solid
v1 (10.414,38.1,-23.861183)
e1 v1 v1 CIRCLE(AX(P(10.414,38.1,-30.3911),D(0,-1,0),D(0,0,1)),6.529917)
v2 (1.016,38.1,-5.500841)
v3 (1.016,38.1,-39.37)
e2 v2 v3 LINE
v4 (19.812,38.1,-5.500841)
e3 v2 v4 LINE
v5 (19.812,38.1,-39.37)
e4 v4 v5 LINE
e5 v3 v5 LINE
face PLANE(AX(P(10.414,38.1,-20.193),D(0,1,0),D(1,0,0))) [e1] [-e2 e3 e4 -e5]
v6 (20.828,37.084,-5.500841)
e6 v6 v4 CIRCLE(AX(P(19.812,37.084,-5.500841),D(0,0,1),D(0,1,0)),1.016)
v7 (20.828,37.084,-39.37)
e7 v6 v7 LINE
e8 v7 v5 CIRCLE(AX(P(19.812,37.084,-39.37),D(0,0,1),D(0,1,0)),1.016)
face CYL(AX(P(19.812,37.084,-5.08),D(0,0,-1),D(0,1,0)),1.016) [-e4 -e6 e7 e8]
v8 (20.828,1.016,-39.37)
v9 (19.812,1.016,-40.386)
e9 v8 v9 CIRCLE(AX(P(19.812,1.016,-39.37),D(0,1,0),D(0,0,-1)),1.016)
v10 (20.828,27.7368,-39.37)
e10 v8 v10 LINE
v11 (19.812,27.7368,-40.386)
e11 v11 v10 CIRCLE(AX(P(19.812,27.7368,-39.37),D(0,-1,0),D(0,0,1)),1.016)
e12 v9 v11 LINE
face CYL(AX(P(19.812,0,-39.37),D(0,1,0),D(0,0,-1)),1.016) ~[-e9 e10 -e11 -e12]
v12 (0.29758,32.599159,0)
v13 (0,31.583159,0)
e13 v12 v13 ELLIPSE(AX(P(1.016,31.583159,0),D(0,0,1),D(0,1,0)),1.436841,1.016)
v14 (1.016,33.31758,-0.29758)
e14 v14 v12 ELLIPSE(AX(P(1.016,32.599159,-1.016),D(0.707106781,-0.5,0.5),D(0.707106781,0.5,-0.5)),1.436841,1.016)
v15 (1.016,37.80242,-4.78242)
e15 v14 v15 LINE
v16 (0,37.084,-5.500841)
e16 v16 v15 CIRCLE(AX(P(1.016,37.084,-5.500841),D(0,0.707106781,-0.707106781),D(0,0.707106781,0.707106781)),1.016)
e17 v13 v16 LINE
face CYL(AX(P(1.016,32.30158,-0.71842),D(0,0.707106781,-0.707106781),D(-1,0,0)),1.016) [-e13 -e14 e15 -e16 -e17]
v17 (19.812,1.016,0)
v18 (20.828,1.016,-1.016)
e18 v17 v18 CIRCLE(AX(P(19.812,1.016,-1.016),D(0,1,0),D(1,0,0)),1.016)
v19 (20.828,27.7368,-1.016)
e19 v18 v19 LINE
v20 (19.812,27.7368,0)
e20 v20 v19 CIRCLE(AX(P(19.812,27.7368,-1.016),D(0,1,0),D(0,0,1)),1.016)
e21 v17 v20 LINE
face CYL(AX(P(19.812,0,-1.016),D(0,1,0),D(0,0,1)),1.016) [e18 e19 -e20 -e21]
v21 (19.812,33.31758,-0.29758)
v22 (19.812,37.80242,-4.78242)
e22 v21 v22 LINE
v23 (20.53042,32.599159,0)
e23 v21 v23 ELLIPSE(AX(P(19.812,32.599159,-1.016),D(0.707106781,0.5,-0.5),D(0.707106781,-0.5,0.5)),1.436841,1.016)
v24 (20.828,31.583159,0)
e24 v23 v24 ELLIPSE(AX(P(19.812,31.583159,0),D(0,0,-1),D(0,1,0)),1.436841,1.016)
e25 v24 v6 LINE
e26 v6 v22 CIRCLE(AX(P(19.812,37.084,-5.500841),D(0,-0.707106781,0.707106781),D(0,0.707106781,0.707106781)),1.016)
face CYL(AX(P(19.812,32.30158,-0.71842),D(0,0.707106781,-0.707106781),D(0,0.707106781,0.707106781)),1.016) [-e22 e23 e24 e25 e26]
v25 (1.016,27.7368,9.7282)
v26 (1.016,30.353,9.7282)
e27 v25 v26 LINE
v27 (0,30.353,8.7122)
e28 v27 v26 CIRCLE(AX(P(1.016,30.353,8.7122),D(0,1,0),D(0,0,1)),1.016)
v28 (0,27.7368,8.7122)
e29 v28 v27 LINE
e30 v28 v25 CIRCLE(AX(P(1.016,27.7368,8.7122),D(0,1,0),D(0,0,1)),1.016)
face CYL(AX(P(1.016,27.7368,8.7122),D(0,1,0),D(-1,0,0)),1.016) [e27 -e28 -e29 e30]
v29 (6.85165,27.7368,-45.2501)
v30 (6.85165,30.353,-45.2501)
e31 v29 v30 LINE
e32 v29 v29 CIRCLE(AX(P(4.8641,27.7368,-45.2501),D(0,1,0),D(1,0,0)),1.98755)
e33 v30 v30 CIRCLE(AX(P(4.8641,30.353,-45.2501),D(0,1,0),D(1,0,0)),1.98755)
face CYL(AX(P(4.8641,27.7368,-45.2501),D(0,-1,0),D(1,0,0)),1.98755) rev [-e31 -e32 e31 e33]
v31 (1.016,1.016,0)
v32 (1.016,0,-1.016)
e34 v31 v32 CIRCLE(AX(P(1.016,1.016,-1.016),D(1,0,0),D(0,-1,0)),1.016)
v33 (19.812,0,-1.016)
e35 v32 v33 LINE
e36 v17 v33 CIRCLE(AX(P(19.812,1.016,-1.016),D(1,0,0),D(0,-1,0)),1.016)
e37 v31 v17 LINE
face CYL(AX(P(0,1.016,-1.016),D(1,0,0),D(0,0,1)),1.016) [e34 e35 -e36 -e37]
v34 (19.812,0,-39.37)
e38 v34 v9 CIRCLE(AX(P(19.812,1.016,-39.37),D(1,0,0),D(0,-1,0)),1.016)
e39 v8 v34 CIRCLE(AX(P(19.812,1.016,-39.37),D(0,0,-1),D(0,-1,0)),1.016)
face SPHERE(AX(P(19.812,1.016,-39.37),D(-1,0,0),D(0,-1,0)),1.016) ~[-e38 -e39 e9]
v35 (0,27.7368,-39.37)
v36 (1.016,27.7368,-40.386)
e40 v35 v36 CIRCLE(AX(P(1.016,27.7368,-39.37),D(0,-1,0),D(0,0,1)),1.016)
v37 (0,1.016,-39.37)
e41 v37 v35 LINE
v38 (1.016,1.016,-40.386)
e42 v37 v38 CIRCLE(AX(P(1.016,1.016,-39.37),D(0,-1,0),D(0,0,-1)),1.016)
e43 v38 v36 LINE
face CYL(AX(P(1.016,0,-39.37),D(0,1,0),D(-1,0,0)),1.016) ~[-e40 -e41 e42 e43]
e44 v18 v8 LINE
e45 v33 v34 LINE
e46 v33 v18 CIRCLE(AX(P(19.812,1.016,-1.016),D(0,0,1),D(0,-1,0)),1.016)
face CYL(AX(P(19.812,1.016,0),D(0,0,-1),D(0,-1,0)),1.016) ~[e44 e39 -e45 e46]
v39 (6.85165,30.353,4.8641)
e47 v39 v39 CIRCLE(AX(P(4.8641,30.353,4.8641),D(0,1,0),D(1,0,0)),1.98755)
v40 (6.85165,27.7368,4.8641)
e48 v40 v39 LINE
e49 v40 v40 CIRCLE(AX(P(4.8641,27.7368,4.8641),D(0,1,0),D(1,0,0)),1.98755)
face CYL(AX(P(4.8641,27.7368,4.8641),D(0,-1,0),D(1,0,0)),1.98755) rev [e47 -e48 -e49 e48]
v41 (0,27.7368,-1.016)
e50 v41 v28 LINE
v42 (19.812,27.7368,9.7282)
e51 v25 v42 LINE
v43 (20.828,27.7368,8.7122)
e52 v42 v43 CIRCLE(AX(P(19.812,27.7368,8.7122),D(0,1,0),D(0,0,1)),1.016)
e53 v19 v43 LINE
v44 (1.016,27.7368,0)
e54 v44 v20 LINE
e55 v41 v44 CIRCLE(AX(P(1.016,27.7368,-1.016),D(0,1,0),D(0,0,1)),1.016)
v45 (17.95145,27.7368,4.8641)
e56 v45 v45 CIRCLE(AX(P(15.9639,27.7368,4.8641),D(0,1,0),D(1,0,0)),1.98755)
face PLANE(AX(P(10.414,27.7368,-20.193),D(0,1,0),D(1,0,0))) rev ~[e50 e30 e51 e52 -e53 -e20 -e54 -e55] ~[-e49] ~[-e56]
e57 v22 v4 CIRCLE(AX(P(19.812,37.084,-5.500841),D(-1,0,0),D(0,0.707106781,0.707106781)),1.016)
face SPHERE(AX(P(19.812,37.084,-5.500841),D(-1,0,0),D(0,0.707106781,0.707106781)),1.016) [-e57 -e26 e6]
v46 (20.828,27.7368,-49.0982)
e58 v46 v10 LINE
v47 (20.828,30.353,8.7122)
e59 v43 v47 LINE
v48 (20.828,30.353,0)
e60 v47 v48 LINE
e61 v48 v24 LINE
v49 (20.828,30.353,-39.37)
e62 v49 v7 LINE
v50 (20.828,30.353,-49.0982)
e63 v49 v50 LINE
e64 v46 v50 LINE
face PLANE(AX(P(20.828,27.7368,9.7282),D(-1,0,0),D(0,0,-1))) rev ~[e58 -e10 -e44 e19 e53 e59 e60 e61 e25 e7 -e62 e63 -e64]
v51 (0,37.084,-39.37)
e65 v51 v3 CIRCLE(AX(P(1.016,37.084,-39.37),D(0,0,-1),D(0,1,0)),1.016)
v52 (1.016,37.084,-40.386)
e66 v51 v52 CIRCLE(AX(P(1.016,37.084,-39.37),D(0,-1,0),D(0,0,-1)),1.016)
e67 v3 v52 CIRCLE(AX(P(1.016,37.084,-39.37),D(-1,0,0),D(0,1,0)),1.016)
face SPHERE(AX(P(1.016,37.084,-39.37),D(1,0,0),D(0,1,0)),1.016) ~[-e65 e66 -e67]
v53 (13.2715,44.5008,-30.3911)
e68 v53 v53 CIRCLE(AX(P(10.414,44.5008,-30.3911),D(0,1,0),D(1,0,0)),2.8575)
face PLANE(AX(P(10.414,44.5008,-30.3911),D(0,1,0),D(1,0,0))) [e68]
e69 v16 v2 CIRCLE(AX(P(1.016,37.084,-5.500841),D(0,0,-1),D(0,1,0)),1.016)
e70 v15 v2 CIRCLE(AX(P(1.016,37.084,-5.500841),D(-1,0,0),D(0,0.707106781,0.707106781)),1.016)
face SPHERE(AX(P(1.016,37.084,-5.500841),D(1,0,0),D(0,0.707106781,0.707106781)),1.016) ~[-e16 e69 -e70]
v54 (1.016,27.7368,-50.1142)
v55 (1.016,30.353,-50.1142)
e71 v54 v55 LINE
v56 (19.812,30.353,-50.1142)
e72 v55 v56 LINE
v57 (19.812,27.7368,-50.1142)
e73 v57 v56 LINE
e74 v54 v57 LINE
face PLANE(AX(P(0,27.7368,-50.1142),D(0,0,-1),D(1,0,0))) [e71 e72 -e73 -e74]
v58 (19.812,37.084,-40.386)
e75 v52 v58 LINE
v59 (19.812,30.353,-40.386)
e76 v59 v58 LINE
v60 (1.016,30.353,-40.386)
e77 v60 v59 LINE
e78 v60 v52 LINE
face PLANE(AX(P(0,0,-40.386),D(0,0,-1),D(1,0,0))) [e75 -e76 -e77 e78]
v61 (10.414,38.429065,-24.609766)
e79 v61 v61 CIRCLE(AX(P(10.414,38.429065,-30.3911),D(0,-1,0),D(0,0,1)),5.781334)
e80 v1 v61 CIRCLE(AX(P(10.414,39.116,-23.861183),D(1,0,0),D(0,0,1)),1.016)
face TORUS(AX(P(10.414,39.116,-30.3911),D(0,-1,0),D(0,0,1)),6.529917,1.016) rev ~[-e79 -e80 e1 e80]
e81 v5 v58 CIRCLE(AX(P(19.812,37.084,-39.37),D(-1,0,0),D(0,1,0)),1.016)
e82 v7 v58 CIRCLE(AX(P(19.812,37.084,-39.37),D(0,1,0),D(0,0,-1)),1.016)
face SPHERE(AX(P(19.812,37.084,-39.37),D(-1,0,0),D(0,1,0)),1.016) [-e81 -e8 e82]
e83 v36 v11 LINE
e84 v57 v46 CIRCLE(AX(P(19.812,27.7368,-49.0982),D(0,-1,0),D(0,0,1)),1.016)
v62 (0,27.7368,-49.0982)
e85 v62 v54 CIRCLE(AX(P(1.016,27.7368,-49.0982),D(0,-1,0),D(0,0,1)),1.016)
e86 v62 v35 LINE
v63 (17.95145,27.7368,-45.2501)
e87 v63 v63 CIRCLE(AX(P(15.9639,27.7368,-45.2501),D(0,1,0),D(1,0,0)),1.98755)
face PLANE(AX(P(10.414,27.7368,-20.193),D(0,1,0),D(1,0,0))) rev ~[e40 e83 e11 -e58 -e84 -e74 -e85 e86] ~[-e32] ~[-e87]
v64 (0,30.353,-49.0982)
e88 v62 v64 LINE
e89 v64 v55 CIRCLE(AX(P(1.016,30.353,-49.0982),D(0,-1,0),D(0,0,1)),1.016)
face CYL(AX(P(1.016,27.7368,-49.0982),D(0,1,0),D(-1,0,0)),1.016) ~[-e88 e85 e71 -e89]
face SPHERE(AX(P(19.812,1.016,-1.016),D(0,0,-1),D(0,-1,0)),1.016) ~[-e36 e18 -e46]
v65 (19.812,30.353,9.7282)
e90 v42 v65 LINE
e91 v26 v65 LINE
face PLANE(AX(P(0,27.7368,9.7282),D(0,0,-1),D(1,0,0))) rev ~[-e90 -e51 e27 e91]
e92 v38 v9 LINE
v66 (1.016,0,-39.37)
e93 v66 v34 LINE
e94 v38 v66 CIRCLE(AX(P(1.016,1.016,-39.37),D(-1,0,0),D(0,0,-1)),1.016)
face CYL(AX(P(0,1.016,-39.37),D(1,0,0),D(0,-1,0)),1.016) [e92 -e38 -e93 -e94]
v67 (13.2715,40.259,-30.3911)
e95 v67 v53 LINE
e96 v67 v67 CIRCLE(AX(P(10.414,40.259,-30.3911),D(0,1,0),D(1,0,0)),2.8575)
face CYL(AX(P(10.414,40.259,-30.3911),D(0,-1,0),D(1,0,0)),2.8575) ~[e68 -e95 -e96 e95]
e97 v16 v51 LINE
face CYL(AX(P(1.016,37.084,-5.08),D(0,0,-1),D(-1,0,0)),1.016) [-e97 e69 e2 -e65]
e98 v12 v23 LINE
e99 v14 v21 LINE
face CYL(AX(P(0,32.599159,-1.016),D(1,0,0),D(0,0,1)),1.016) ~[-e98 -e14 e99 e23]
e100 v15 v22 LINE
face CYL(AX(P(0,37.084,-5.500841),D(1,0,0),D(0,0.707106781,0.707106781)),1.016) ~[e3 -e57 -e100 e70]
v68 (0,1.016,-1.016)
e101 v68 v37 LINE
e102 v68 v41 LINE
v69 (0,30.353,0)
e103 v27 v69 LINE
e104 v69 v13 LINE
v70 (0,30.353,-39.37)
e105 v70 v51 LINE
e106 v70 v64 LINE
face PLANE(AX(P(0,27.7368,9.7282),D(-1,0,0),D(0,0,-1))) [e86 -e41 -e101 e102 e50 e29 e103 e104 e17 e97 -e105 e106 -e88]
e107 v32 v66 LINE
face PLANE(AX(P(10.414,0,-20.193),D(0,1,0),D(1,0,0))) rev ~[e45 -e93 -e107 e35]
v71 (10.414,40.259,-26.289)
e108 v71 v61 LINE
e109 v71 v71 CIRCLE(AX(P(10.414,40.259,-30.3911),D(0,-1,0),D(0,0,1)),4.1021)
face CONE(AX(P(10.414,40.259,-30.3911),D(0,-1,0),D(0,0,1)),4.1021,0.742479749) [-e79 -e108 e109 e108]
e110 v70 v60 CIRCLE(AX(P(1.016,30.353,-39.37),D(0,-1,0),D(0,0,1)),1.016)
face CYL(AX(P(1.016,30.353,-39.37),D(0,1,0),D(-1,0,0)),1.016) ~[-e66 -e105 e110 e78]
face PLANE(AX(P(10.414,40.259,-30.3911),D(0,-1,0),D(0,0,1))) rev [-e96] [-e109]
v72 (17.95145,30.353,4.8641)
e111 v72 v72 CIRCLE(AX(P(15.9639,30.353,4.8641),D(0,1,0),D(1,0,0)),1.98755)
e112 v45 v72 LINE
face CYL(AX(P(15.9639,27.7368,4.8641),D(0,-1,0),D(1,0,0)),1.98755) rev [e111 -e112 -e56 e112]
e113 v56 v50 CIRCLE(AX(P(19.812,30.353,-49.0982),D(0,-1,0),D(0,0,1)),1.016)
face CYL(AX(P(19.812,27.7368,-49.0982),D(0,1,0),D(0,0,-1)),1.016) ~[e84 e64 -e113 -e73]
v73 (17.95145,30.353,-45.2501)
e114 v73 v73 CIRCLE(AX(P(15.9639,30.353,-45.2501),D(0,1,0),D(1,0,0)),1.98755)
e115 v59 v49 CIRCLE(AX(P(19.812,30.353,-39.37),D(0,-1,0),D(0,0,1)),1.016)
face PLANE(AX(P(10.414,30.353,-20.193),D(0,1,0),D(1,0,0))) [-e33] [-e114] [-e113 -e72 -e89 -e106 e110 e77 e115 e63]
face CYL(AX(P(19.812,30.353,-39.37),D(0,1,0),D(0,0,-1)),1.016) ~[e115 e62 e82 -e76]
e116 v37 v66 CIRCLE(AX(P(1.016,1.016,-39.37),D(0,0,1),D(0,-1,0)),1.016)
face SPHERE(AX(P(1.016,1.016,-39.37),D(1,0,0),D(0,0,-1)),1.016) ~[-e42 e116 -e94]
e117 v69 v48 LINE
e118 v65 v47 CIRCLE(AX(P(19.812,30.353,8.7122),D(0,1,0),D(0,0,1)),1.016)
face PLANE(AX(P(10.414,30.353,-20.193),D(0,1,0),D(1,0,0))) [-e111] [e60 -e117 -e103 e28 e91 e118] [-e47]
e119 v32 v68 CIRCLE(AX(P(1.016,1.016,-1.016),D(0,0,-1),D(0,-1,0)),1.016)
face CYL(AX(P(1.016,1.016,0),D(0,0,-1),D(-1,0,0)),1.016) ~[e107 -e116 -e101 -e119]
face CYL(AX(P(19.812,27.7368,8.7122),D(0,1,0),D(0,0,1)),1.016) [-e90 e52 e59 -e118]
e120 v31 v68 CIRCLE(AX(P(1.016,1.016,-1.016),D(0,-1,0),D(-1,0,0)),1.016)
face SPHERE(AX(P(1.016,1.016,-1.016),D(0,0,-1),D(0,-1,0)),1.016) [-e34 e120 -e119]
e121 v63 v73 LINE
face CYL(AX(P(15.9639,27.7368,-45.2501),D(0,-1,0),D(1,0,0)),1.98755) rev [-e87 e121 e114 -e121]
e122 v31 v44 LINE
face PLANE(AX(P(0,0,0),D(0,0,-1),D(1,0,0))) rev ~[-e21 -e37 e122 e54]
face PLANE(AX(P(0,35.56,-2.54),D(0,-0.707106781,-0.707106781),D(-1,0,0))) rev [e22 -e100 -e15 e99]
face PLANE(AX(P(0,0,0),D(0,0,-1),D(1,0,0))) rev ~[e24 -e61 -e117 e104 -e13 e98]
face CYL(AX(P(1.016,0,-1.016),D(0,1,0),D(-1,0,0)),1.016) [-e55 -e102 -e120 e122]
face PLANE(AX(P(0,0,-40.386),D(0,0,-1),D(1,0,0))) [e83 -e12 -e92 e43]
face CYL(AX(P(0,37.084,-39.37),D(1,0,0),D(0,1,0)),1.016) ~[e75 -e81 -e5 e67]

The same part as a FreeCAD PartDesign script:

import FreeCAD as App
import Part
import Sketcher

V = App.Vector
Q = App.Units.Quantity


def edges_at(feature, points):
    """Names of the edges that pass closest to the given points."""
    edges = feature.Shape.Edges
    near = lambda p: min(range(len(edges)), key=lambda i: edges[i].distToShape(Part.Vertex(*p))[0])
    return sorted({f"Edge{near(p) + 1}" for p in points})

doc = App.newDocument("Part")
body = doc.addObject("PartDesign::Body", "Body")

# Sketch on XZ plane
sketch1 = doc.addObject("Sketcher::SketchObject", "Sketch")
body.addObject(sketch1)
sketch1.AttachmentSupport = (doc.XZ_Plane, [""])
sketch1.MapMode = "FlatFace"
sketch1.addGeometry(Part.LineSegment(V(0, -40.386, 0), V(0, 0, 0)), False)
sketch1.addGeometry(Part.LineSegment(V(0, 0, 0), V(20.828, 0, 0)), False)
sketch1.addGeometry(Part.LineSegment(V(20.828, 0, 0), V(20.828, -40.386, 0)), False)
sketch1.addGeometry(Part.LineSegment(V(20.828, -40.386, 0), V(0, -40.386, 0)), False)
sketch1.addConstraint(Sketcher.Constraint("Coincident", 0, 2, 1, 1))
sketch1.addConstraint(Sketcher.Constraint("Coincident", 1, 2, 2, 1))
sketch1.addConstraint(Sketcher.Constraint("Coincident", 2, 2, 3, 1))
sketch1.addConstraint(Sketcher.Constraint("Coincident", 3, 2, 0, 1))
sketch1.addConstraint(Sketcher.Constraint("Vertical", 0))
sketch1.addConstraint(Sketcher.Constraint("Horizontal", 1))
sketch1.addConstraint(Sketcher.Constraint("Vertical", 2))
sketch1.addConstraint(Sketcher.Constraint("Horizontal", 3))
sketch1.addConstraint(Sketcher.Constraint("Coincident", 0, 2, -1, 1))
sketch1.addConstraint(Sketcher.Constraint("DistanceX", 1, 1, 1, 2, Q("0.82 in")))
sketch1.addConstraint(Sketcher.Constraint("DistanceY", 0, 1, 0, 2, Q("1.59 in")))
pad1 = doc.addObject("PartDesign::Pad", "Pad")
body.addObject(pad1)
pad1.Profile = sketch1
pad1.Length = Q("1.5 in")
pad1.Reversed = True

# Sketch on XZ plane
sketch2 = doc.addObject("Sketcher::SketchObject", "Sketch001")
body.addObject(sketch2)
sketch2.AttachmentSupport = (doc.XZ_Plane, [""])
sketch2.MapMode = "FlatFace"
sketch2.AttachmentOffset = App.Placement(V(0, 0, -1.092 * 25.4), App.Rotation())
sketch2.addGeometry(Part.LineSegment(V(0, -50.1142, 0), V(0, 9.7282, 0)), False)
sketch2.addGeometry(Part.LineSegment(V(0, 9.7282, 0), V(20.828, 9.7282, 0)), False)
sketch2.addGeometry(Part.LineSegment(V(20.828, 9.7282, 0), V(20.828, -50.1142, 0)), False)
sketch2.addGeometry(Part.LineSegment(V(20.828, -50.1142, 0), V(0, -50.1142, 0)), False)
sketch2.addGeometry(Part.Circle(V(4.8641, 4.8641, 0), V(0, 0, 1), 1.98755), False)
sketch2.addGeometry(Part.Circle(V(15.9639, 4.8641, 0), V(0, 0, 1), 1.98755), False)
sketch2.addGeometry(Part.Circle(V(4.8641, -45.2501, 0), V(0, 0, 1), 1.98755), False)
sketch2.addGeometry(Part.Circle(V(15.9639, -45.2501, 0), V(0, 0, 1), 1.98755), False)
sketch2.addConstraint(Sketcher.Constraint("Coincident", 0, 2, 1, 1))
sketch2.addConstraint(Sketcher.Constraint("Coincident", 1, 2, 2, 1))
sketch2.addConstraint(Sketcher.Constraint("Coincident", 2, 2, 3, 1))
sketch2.addConstraint(Sketcher.Constraint("Coincident", 3, 2, 0, 1))
sketch2.addConstraint(Sketcher.Constraint("Vertical", 0))
sketch2.addConstraint(Sketcher.Constraint("Horizontal", 1))
sketch2.addConstraint(Sketcher.Constraint("Vertical", 2))
sketch2.addConstraint(Sketcher.Constraint("Horizontal", 3))
sketch2.addConstraint(Sketcher.Constraint("Equal", 4, 5))
sketch2.addConstraint(Sketcher.Constraint("Equal", 5, 6))
sketch2.addConstraint(Sketcher.Constraint("Equal", 6, 7))
sketch2.addConstraint(Sketcher.Constraint("PointOnObject", 0, 2, -2))
sketch2.addConstraint(Sketcher.Constraint("Horizontal", 4, 3, 5, 3))
sketch2.addConstraint(Sketcher.Constraint("Horizontal", 6, 3, 7, 3))
sketch2.addConstraint(Sketcher.Constraint("Vertical", 4, 3, 6, 3))
sketch2.addConstraint(Sketcher.Constraint("Vertical", 5, 3, 7, 3))
sketch2.addConstraint(Sketcher.Constraint("Diameter", 4, Q("0.1565 in")))
sketch2.addConstraint(Sketcher.Constraint("DistanceX", 1, 1, 1, 2, Q("0.82 in")))
sketch2.addConstraint(Sketcher.Constraint("DistanceY", 0, 1, 0, 2, Q("2.356 in")))
sketch2.addConstraint(Sketcher.Constraint("DistanceY", -1, 1, 0, 2, Q("0.383 in")))
sketch2.addConstraint(Sketcher.Constraint("DistanceX", 4, 3, 5, 3, Q("0.437 in")))
sketch2.addConstraint(Sketcher.Constraint("DistanceY", 6, 3, 4, 3, Q("1.973 in")))
sketch2.addConstraint(Sketcher.Constraint("DistanceX", -1, 1, 4, 3, Q("0.1915 in")))
sketch2.addConstraint(Sketcher.Constraint("DistanceY", -1, 1, 4, 3, Q("0.1915 in")))
pad2 = doc.addObject("PartDesign::Pad", "Pad001")
body.addObject(pad2)
pad2.Profile = sketch2
pad2.Length = Q("0.103 in")
pad2.Reversed = True

# Sketch on YZ plane
sketch3 = doc.addObject("Sketcher::SketchObject", "Sketch002")
body.addObject(sketch3)
sketch3.AttachmentSupport = (doc.YZ_Plane, [""])
sketch3.MapMode = "FlatFace"
sketch3.AttachmentOffset = App.Placement(V(0, 0, 0.41 * 25.4), App.Rotation())
sketch3.addGeometry(Part.LineSegment(V(40.259, -30.3911, 0), V(40.259, -26.289, 0)), False)
sketch3.addGeometry(Part.LineSegment(V(40.259, -26.289, 0), V(38.1, -24.3078, 0)), False)
sketch3.addGeometry(Part.LineSegment(V(38.1, -24.3078, 0), V(38.1, -30.3911, 0)), False)
sketch3.addGeometry(Part.LineSegment(V(38.1, -30.3911, 0), V(40.259, -30.3911, 0)), False)
sketch3.addGeometry(Part.LineSegment(V(40.259, -30.3911, 0), V(38.1, -30.3911, 0)), True)  # axis
sketch3.addConstraint(Sketcher.Constraint("Coincident", 0, 2, 1, 1))
sketch3.addConstraint(Sketcher.Constraint("Coincident", 1, 2, 2, 1))
sketch3.addConstraint(Sketcher.Constraint("Coincident", 2, 2, 3, 1))
sketch3.addConstraint(Sketcher.Constraint("Coincident", 3, 2, 0, 1))
sketch3.addConstraint(Sketcher.Constraint("Vertical", 0))
sketch3.addConstraint(Sketcher.Constraint("Vertical", 2))
sketch3.addConstraint(Sketcher.Constraint("Horizontal", 3))
sketch3.addConstraint(Sketcher.Constraint("Horizontal", 4))
sketch3.addConstraint(Sketcher.Constraint("Coincident", 4, 1, 3, 2))
sketch3.addConstraint(Sketcher.Constraint("Vertical", 1, 2, 4, 2))
sketch3.addConstraint(Sketcher.Constraint("DistanceX", -1, 1, 1, 2, Q("1.5 in")))
sketch3.addConstraint(Sketcher.Constraint("DistanceX", 3, 1, 3, 2, Q("0.085 in")))
sketch3.addConstraint(Sketcher.Constraint("DistanceY", 0, 1, 0, 2, Q("0.1615 in")))
sketch3.addConstraint(Sketcher.Constraint("DistanceY", 2, 2, 2, 1, Q("0.2395 in")))
sketch3.addConstraint(Sketcher.Constraint("DistanceY", 0, 2, -1, 1, Q("1.035 in")))
revolution = doc.addObject("PartDesign::Revolution", "Revolution")
body.addObject(revolution)
revolution.Profile = sketch3
revolution.ReferenceAxis = (sketch3, ["Axis0"])
revolution.Angle = 360

# Sketch on XZ plane
sketch4 = doc.addObject("Sketcher::SketchObject", "Sketch003")
body.addObject(sketch4)
sketch4.AttachmentSupport = (doc.XZ_Plane, [""])
sketch4.MapMode = "FlatFace"
sketch4.AttachmentOffset = App.Placement(V(0, 0, -1.585 * 25.4), App.Rotation())
sketch4.addGeometry(Part.Circle(V(10.414, -30.3911, 0), V(0, 0, 1), 2.8575), False)
sketch4.addConstraint(Sketcher.Constraint("Diameter", 0, Q("0.225 in")))
sketch4.addConstraint(Sketcher.Constraint("DistanceX", -1, 1, 0, 3, Q("0.41 in")))
sketch4.addConstraint(Sketcher.Constraint("DistanceY", 0, 3, -1, 1, Q("1.1965 in")))
pad3 = doc.addObject("PartDesign::Pad", "Pad002")
body.addObject(pad3)
pad3.Profile = sketch4
pad3.Length = Q("0.167 in")
pad3.Reversed = True
doc.recompute()

chamfer = doc.addObject("PartDesign::Chamfer", "Chamfer")
body.addObject(chamfer)
chamfer.Base = (pad3, edges_at(pad3, [(10.414, 38.1, 0)]))
chamfer.Size = Q("0.2 in")
doc.recompute()

fillet = doc.addObject("PartDesign::Fillet", "Fillet")
body.addObject(fillet)
fillet.Base = (chamfer, edges_at(chamfer, [
    (10.414, 38.1, -40.386),
    (20.828, 38.1, -22.733),
    (0, 38.1, -22.733),
    (10.414, 38.1, -36.474),
    (10.414, 38.1, -5.08),
    (20.828, 35.56, -2.54),
    (10.414, 33.02, 0),
    (0, 35.56, -2.54),
    (10.414, 0, -40.386),
    (0, 13.868, -40.386),
    (0, 0, -20.193),
    (20.828, 0, -20.193),
    (10.414, 0, 0),
    (20.828, 13.868, -40.386),
    (0, 13.868, 0),
    (20.828, 13.868, 0),
    (0, 34.227, -40.386),
    (20.828, 34.227, -40.386),
    (0, 29.045, 9.728),
    (20.828, 29.045, 9.728),
    (0, 29.045, -50.114),
    (20.828, 29.045, -50.114),
]))
fillet.Radius = Q("0.04 in")

doc.recompute()
